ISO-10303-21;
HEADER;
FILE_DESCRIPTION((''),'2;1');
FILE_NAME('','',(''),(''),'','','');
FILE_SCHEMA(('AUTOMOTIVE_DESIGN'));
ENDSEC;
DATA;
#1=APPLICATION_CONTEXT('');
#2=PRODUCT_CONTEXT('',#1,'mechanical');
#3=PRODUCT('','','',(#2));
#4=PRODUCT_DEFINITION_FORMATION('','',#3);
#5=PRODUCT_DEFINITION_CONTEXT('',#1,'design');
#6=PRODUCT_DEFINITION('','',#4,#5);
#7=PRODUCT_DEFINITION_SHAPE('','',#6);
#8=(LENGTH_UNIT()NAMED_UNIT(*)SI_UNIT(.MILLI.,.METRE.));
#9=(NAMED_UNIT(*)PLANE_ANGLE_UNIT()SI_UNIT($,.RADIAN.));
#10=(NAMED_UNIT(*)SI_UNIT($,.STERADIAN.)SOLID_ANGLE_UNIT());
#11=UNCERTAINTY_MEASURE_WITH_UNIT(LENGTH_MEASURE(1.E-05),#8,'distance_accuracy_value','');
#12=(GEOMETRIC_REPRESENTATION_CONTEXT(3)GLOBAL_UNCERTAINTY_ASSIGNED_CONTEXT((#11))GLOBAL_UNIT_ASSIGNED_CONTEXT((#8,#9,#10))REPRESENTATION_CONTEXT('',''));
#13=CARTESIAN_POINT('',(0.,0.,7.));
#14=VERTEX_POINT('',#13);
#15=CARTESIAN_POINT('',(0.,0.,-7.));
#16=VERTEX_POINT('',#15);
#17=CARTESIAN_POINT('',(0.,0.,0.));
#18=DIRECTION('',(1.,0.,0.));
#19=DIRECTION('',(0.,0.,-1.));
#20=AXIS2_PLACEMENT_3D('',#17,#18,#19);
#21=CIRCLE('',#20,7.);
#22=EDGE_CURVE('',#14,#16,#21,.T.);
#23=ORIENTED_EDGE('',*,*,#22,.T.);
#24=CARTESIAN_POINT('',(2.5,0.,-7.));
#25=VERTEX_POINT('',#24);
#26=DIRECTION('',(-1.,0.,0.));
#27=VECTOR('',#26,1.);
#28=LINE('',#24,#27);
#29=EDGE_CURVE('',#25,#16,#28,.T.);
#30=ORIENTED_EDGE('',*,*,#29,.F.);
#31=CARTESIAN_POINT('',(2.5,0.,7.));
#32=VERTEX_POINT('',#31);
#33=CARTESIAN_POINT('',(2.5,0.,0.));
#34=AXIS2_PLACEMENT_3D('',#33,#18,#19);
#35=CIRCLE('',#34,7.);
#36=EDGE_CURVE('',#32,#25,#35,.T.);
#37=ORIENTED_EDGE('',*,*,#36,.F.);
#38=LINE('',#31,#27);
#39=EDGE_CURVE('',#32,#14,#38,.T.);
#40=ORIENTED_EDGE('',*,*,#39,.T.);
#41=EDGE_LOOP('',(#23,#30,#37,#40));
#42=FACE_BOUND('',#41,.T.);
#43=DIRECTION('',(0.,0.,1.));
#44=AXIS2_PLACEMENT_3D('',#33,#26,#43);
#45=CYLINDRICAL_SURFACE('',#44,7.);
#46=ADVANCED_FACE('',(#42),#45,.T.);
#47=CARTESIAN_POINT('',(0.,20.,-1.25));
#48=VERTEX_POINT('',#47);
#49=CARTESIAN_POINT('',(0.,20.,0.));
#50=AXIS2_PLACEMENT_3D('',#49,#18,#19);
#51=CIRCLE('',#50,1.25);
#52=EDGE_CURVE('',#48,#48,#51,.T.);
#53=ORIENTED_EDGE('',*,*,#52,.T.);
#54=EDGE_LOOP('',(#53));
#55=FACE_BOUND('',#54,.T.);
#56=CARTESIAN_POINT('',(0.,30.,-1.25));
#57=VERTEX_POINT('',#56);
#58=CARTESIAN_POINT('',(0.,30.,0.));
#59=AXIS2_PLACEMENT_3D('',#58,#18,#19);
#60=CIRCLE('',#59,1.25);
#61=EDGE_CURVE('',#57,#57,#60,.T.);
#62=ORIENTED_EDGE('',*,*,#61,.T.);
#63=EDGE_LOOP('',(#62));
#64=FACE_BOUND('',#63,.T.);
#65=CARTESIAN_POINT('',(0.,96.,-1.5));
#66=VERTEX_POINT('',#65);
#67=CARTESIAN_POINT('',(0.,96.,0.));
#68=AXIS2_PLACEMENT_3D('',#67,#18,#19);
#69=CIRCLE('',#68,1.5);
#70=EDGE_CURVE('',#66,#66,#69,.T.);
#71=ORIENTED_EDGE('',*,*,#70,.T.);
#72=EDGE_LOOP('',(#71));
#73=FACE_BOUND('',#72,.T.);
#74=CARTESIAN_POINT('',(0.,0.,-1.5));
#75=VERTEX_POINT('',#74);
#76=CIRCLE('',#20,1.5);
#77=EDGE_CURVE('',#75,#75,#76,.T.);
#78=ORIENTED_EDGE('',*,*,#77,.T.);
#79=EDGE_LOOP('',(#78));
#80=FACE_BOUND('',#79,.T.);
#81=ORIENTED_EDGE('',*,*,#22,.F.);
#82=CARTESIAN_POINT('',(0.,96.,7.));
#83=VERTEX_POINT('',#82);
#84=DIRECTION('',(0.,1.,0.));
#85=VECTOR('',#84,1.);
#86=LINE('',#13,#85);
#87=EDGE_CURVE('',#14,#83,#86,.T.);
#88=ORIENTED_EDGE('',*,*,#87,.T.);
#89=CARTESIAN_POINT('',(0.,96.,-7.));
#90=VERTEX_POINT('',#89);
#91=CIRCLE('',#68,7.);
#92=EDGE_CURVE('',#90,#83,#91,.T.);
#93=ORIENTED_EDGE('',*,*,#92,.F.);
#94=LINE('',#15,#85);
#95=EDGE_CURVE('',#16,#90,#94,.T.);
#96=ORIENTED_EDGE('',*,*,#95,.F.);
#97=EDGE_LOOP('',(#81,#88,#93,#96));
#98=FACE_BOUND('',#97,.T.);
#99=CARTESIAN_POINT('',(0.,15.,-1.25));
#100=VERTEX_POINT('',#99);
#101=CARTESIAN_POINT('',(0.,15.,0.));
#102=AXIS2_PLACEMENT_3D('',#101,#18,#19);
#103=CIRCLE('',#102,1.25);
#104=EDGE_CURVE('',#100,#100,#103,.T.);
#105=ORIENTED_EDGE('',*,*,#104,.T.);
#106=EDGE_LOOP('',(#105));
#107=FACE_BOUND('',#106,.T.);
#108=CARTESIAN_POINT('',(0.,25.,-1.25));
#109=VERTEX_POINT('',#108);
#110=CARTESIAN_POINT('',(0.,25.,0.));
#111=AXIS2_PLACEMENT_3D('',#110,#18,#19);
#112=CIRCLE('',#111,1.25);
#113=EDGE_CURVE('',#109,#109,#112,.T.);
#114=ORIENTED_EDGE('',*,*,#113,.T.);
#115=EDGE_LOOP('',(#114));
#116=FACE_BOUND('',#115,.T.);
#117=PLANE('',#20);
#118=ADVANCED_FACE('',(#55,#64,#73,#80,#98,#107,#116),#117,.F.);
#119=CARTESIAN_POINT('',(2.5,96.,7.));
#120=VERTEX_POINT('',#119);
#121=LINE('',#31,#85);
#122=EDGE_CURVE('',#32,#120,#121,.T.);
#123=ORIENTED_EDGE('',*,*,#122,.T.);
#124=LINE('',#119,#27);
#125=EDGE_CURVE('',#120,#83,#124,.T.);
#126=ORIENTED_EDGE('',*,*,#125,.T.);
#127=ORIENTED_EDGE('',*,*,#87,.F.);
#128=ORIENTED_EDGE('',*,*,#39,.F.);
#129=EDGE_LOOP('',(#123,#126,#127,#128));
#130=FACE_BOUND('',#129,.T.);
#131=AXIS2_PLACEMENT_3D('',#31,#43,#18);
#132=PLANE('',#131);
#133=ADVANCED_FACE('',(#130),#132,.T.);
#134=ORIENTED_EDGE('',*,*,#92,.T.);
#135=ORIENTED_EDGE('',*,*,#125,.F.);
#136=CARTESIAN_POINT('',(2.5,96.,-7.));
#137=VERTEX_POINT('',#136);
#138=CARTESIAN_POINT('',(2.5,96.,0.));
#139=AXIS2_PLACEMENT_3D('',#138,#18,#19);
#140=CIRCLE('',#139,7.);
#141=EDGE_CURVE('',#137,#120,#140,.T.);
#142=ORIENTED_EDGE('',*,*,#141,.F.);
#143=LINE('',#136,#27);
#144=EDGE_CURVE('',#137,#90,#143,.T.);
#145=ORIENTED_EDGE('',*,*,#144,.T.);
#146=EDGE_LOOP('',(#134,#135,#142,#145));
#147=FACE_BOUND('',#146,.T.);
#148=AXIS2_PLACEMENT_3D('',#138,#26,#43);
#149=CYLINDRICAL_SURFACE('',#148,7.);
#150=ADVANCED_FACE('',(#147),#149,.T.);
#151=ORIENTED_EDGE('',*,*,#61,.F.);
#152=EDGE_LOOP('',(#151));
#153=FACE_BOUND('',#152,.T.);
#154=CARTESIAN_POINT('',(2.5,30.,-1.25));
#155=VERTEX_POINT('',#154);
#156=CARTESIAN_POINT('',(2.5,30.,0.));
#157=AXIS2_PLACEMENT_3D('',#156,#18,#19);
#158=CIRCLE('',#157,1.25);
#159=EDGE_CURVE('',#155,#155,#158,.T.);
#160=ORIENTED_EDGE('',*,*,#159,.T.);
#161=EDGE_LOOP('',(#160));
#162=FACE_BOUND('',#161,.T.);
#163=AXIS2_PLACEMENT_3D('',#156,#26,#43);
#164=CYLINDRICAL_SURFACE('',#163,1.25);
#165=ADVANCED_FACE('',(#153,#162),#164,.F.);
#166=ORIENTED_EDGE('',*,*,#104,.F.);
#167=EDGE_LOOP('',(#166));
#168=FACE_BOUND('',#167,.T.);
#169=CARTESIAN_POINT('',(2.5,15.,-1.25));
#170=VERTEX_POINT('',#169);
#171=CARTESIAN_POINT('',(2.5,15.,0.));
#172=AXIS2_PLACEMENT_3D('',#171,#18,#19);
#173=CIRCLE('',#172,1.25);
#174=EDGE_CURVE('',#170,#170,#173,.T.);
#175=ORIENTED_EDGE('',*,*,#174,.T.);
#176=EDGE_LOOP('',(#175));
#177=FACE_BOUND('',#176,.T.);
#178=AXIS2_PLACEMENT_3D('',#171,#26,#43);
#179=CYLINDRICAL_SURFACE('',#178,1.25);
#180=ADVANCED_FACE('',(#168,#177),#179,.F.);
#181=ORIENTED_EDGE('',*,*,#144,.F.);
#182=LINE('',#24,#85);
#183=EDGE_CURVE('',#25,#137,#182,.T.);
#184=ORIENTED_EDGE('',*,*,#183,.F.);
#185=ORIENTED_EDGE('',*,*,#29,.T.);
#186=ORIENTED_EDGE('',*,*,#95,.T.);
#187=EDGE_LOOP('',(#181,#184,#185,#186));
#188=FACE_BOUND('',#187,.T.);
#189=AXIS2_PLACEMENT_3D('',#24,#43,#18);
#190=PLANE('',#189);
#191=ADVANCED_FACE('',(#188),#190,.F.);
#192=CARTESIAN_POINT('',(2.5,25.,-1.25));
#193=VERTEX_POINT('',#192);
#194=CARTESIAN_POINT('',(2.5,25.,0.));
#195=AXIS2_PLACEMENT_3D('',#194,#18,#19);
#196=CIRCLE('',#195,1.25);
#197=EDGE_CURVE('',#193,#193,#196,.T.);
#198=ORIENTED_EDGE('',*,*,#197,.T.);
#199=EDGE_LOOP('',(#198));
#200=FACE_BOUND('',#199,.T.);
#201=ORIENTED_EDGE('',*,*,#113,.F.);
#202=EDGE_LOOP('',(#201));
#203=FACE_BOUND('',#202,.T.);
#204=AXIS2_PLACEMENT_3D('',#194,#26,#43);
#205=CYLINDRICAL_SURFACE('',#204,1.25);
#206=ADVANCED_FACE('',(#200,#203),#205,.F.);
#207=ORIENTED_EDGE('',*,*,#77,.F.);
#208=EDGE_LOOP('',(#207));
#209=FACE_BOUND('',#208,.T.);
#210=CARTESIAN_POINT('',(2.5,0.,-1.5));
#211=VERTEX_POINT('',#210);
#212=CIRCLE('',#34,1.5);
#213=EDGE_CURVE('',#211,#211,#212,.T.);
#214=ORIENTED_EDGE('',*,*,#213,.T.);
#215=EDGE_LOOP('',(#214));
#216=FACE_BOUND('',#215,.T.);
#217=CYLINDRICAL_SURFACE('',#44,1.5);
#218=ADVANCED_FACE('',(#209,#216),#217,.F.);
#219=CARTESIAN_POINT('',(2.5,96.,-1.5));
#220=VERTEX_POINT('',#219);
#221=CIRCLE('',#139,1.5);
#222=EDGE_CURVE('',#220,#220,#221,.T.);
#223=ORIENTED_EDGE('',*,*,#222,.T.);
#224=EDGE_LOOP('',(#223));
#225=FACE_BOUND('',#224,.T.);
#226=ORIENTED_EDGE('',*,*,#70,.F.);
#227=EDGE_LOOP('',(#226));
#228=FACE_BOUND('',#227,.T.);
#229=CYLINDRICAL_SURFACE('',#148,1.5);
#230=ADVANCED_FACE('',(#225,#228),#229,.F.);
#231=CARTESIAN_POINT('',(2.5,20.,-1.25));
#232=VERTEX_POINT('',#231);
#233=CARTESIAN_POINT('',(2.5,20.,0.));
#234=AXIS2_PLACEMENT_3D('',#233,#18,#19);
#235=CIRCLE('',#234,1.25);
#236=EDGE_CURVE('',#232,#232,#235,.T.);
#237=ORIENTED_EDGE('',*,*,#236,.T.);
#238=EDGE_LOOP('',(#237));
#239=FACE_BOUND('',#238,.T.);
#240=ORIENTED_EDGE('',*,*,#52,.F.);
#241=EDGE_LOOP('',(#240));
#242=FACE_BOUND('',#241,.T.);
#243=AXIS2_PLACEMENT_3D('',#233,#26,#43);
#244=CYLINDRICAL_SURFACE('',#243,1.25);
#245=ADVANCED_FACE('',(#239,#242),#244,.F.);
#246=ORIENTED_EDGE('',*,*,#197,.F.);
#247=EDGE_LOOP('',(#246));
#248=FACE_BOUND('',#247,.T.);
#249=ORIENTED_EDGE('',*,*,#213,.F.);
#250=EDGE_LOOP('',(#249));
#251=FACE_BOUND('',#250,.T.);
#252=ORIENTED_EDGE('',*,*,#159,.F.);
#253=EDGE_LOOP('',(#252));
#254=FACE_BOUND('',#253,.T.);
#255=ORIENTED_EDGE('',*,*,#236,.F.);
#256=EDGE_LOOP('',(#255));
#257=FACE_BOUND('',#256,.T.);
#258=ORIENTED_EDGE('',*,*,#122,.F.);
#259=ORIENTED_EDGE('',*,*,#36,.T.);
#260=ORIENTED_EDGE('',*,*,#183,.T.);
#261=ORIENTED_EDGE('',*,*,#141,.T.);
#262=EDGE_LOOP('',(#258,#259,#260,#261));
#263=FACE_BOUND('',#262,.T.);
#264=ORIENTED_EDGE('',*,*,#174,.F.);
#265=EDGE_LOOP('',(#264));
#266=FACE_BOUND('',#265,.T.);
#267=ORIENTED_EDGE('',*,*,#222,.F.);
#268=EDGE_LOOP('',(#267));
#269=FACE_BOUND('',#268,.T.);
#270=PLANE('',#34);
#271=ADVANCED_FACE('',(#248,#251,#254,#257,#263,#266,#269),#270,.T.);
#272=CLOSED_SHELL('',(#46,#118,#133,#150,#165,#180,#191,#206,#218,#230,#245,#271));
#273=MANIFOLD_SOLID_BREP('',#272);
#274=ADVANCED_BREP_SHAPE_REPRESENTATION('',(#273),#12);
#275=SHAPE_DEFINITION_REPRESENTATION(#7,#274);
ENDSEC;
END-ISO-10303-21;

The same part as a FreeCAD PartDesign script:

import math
import FreeCAD as App
import Part
import Sketcher
Q = App.Units.Quantity

doc = App.newDocument("Part")
params = doc.addObject("Spreadsheet::Sheet", "Params")
for row, (alias, value) in enumerate([
    ("sketch1_diameter", "3 mm"),
    ("sketch1_radius", "7 mm"),
    ("sketch1_diameter2", "2.5 mm"),
    ("sketch1_width", "96 mm"),
    ("pad1_length", "2.5 mm"),
], start=1):
    params.set(f"A{row}", alias)
    params.set(f"B{row}", "=" + value)
    params.setAlias(f"B{row}", alias)

body = doc.addObject("PartDesign::Body", "Body")

# Sketch on YZ plane
sketch1 = doc.addObject("Sketcher::SketchObject", "Sketch")
body.addObject(sketch1)
sketch1.AttachmentSupport = (doc.YZ_Plane, [""])
sketch1.MapMode = "FlatFace"
sketch1.addGeometry([
    Part.LineSegment(App.Vector(96, 7, 0), App.Vector(0, 7, 0)),  # 0
    Part.ArcOfCircle(Part.Circle(App.Vector(0, 0, 0), App.Vector(0, 0, 1), 7), math.radians(90), math.radians(270)),  # 1
    Part.LineSegment(App.Vector(0, -7, 0), App.Vector(96, -7, 0)),  # 2
    Part.ArcOfCircle(Part.Circle(App.Vector(96, 0, 0), App.Vector(0, 0, 1), 7), math.radians(-90), math.radians(90)),  # 3
    Part.Circle(App.Vector(0, 0, 0), App.Vector(0, 0, 1), 1.5),  # 4
    Part.Circle(App.Vector(15, 0, 0), App.Vector(0, 0, 1), 1.2),  # 5
    Part.Circle(App.Vector(20, 0, 0), App.Vector(0, 0, 1), 1.2),  # 6
    Part.Circle(App.Vector(25, 0, 0), App.Vector(0, 0, 1), 1.2),  # 7
    Part.Circle(App.Vector(30, 0, 0), App.Vector(0, 0, 1), 1.2),  # 8
    Part.Circle(App.Vector(96, 0, 0), App.Vector(0, 0, 1), 1.5),  # 9
], False)
sketch1.addConstraint([
    Sketcher.Constraint("Tangent", 0, 2, 1, 1),
    Sketcher.Constraint("Tangent", 1, 2, 2, 1),
    Sketcher.Constraint("Tangent", 2, 2, 3, 1),
    Sketcher.Constraint("Tangent", 3, 2, 0, 1),
    Sketcher.Constraint("Horizontal", 0),
    Sketcher.Constraint("Horizontal", 2),
    Sketcher.Constraint("Coincident", 1, 3, -1, 1),
    Sketcher.Constraint("Coincident", 4, 3, -1, 1),
    Sketcher.Constraint("Coincident", 9, 3, 3, 3),
    Sketcher.Constraint("Equal", 5, 6),
    Sketcher.Constraint("Equal", 6, 7),
    Sketcher.Constraint("Equal", 7, 8),
    Sketcher.Constraint("Equal", 4, 9),
    Sketcher.Constraint("PointOnObject", 5, 3, -1),
    Sketcher.Constraint("PointOnObject", 6, 3, -1),
    Sketcher.Constraint("PointOnObject", 7, 3, -1),
    Sketcher.Constraint("PointOnObject", 8, 3, -1),
    Sketcher.Constraint("Diameter", 4, Q("3 mm")),
    Sketcher.Constraint("Radius", 1, Q("7 mm")),
    Sketcher.Constraint("Diameter", 5, Q("2.5 mm")),
    Sketcher.Constraint("DistanceX", 0, 2, 0, 1, Q("96 mm")),
    Sketcher.Constraint("DistanceX", -1, 1, 5, 3, Q("15 mm")),
    Sketcher.Constraint("DistanceX", -1, 1, 6, 3, Q("20 mm")),
    Sketcher.Constraint("DistanceX", -1, 1, 7, 3, Q("25 mm")),
    Sketcher.Constraint("DistanceX", -1, 1, 8, 3, Q("30 mm")),
])
sketch1.setExpression("Constraints[17]", "Params.sketch1_diameter")
sketch1.setExpression("Constraints[18]", "Params.sketch1_radius")
sketch1.setExpression("Constraints[19]", "Params.sketch1_diameter2")
sketch1.setExpression("Constraints[20]", "Params.sketch1_width")
pad1 = doc.addObject("PartDesign::Pad", "Pad")
body.addObject(pad1)
pad1.Profile = sketch1
pad1.setExpression("Length", "Params.pad1_length")

doc.recompute()
